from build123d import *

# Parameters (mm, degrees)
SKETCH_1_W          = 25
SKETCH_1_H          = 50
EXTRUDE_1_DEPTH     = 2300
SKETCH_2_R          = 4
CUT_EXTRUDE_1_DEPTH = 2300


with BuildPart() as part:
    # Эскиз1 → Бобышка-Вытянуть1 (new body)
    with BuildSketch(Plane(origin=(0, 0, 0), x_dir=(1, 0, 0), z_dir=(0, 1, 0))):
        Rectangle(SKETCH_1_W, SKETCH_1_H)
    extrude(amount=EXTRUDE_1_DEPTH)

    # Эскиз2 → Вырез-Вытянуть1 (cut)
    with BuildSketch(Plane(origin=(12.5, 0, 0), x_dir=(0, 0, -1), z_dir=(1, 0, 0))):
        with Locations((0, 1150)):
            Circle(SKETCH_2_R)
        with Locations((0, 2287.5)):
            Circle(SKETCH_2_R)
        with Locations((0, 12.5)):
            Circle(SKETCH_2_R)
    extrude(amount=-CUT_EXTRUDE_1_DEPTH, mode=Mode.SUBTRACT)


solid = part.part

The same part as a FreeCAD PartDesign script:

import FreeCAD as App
import Part
import Sketcher
from FreeCAD import Vector


def add_polygon(sketch, points):
    """Adds a closed chain of lines whose ends are joined by coincident constraints."""
    first, n = sketch.GeometryCount, len(points)
    for a, b in zip(points, points[1:] + points[:1]):
        sketch.addGeometry(Part.LineSegment(App.Vector(*a, 0), App.Vector(*b, 0)), False)
    for i in range(n):
        sketch.addConstraint(Sketcher.Constraint("Coincident", first + i, 2, first + (i + 1) % n, 1))

doc = App.newDocument("Part")
body = doc.addObject("PartDesign::Body", "Body")

# Sketch on XZ plane
sketch1 = body.newObject("Sketcher::SketchObject", "Sketch")
sketch1.AttachmentSupport = (doc.getObject("XZ_Plane"), [""])
sketch1.MapMode = "FlatFace"
add_polygon(sketch1, [(-12, -25), (-12, 25), (12, 25), (12, -25)])  # lines 0-3
sketch1.addConstraint([
    Sketcher.Constraint("Vertical", 0),
    Sketcher.Constraint("Horizontal", 1),
    Sketcher.Constraint("Vertical", 2),
    Sketcher.Constraint("Horizontal", 3),
    Sketcher.Constraint("Symmetric", 0, 2, 2, 2, -1, 1),
    Sketcher.Constraint("DistanceX", 1, 1, 1, 2, 25.0),
    Sketcher.Constraint("DistanceY", 0, 1, 0, 2, 50.0),
])
pad1 = body.newObject("PartDesign::Pad", "Pad")
pad1.Profile = sketch1
pad1.Length = 2300
pad1.Reversed = True

# Sketch on YZ plane
sketch2 = body.newObject("Sketcher::SketchObject", "Sketch001")
sketch2.AttachmentSupport = (doc.getObject("YZ_Plane"), [""])
sketch2.MapMode = "FlatFace"
sketch2.AttachmentOffset = App.Placement(Vector(0, 0, 12.5), App.Rotation())
sketch2.addGeometry([
    Part.Circle(Vector(1150, 0, 0), Vector(0, 0, 1), 4),
    Part.Circle(Vector(2287.5, 0, 0), Vector(0, 0, 1), 4),
    Part.Circle(Vector(12.5, 0, 0), Vector(0, 0, 1), 4),
], False)
sketch2.addConstraint([
    Sketcher.Constraint("Equal", 0, 1),
    Sketcher.Constraint("Equal", 1, 2),
    Sketcher.Constraint("PointOnObject", 0, 3, -1),
    Sketcher.Constraint("PointOnObject", 1, 3, -1),
    Sketcher.Constraint("PointOnObject", 2, 3, -1),
    Sketcher.Constraint("Diameter", 0, 8.0),
    Sketcher.Constraint("DistanceX", -1, 1, 0, 3, 1150.0),
    Sketcher.Constraint("DistanceX", 2, 3, 1, 3, 2275.0),
    Sketcher.Constraint("DistanceX", -1, 1, 1, 3, 2287.5),
])
pocket1 = body.newObject("PartDesign::Pocket", "Pocket")
pocket1.Profile = sketch2
pocket1.Length = 2300

doc.recompute()
